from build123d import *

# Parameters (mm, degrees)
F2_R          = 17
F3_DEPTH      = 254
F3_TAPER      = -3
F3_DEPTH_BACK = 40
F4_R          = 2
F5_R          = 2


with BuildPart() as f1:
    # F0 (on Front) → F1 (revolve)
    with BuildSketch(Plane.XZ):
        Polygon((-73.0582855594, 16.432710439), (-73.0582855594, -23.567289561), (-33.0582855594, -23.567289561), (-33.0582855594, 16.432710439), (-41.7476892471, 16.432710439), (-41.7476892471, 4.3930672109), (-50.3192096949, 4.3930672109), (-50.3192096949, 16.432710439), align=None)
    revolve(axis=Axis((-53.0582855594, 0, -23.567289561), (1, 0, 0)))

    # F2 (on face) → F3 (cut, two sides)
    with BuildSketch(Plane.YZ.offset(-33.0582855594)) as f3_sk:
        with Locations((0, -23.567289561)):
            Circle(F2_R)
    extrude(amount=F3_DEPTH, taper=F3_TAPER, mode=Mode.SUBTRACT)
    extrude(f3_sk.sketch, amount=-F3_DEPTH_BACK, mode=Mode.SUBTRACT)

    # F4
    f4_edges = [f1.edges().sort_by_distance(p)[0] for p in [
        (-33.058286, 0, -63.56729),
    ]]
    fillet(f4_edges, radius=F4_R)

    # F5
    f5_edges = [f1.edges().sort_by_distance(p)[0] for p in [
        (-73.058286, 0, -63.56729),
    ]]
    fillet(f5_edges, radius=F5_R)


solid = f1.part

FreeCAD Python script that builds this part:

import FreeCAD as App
import Part
import Sketcher


def edges_at(feature, points):
    """Names of the edges that pass closest to the given points."""
    edges = feature.Shape.Edges
    near = lambda p: min(range(len(edges)), key=lambda i: edges[i].distToShape(Part.Vertex(*p))[0])
    return sorted({f"Edge{near(p) + 1}" for p in points})

doc = App.newDocument("Part")
body = doc.addObject("PartDesign::Body", "Body")

sketch1 = body.newObject("Sketcher::SketchObject", "Sketch")
sketch1.AttachmentSupport = (doc.getObject("XZ_Plane"), [""])
sketch1.MapMode = "FlatFace"
sketch1.addGeometry(Part.LineSegment(App.Vector(-73, 16, 0), App.Vector(-73, -24, 0)), False)
sketch1.addGeometry(Part.LineSegment(App.Vector(-73, -24, 0), App.Vector(-33, -24, 0)), False)
sketch1.addGeometry(Part.LineSegment(App.Vector(-33, -24, 0), App.Vector(-33, 16, 0)), False)
sketch1.addGeometry(Part.LineSegment(App.Vector(-33, 16, 0), App.Vector(-42, 16, 0)), False)
sketch1.addGeometry(Part.LineSegment(App.Vector(-42, 16, 0), App.Vector(-42, 4, 0)), False)
sketch1.addGeometry(Part.LineSegment(App.Vector(-42, 4, 0), App.Vector(-50, 4, 0)), False)
sketch1.addGeometry(Part.LineSegment(App.Vector(-50, 4, 0), App.Vector(-50, 16, 0)), False)
sketch1.addGeometry(Part.LineSegment(App.Vector(-50, 16, 0), App.Vector(-73, 16, 0)), False)
sketch1.addGeometry(Part.LineSegment(App.Vector(-73, -24, 0), App.Vector(-33, -24, 0)), True)
sketch1.addConstraint(Sketcher.Constraint("Coincident", 0, 2, 1, 1))
sketch1.addConstraint(Sketcher.Constraint("Coincident", 1, 2, 2, 1))
sketch1.addConstraint(Sketcher.Constraint("Coincident", 2, 2, 3, 1))
sketch1.addConstraint(Sketcher.Constraint("Coincident", 3, 2, 4, 1))
sketch1.addConstraint(Sketcher.Constraint("Coincident", 4, 2, 5, 1))
sketch1.addConstraint(Sketcher.Constraint("Coincident", 5, 2, 6, 1))
sketch1.addConstraint(Sketcher.Constraint("Coincident", 6, 2, 7, 1))
sketch1.addConstraint(Sketcher.Constraint("Coincident", 7, 2, 0, 1))
sketch1.addConstraint(Sketcher.Constraint("Vertical", 0))
sketch1.addConstraint(Sketcher.Constraint("Horizontal", 1))
sketch1.addConstraint(Sketcher.Constraint("Vertical", 2))
sketch1.addConstraint(Sketcher.Constraint("Horizontal", 3))
sketch1.addConstraint(Sketcher.Constraint("Vertical", 4))
sketch1.addConstraint(Sketcher.Constraint("Horizontal", 5))
sketch1.addConstraint(Sketcher.Constraint("Vertical", 6))
sketch1.addConstraint(Sketcher.Constraint("Horizontal", 7))
sketch1.addConstraint(Sketcher.Constraint("Horizontal", 8))
sketch1.addConstraint(Sketcher.Constraint("Coincident", 8, 1, 0, 2))
sketch1.addConstraint(Sketcher.Constraint("Horizontal", 3, 2, 6, 2))
sketch1.addConstraint(Sketcher.Constraint("Vertical", 2, 2, 8, 2))
sketch1.addConstraint(Sketcher.Constraint("Equal", 8, 0))
sketch1.addConstraint(Sketcher.Constraint("DistanceX", 1, 1, 1, 2, 40.0))
sketch1.addConstraint(Sketcher.Constraint("DistanceX", 5, 2, 5, 1, 8.57152))
sketch1.addConstraint(Sketcher.Constraint("DistanceX", 3, 2, 3, 1, 8.689404))
sketch1.addConstraint(Sketcher.Constraint("DistanceY", 4, 2, 4, 1, 12.039643))
sketch1.addConstraint(Sketcher.Constraint("DistanceY", 0, 2, -1, 1, 23.56729))
sketch1.addConstraint(Sketcher.Constraint("DistanceX", 3, 2, -1, 1, 41.747689))
revolution = body.newObject("PartDesign::Revolution", "Revolution")
revolution.Profile = sketch1
revolution.ReferenceAxis = (sketch1, ["Axis0"])
revolution.Angle = 360

sketch2 = body.newObject("Sketcher::SketchObject", "Sketch001")
sketch2.AttachmentSupport = (doc.getObject("YZ_Plane"), [""])
sketch2.MapMode = "FlatFace"
sketch2.AttachmentOffset = App.Placement(App.Vector(0, 0, -33.058286), App.Rotation())
sketch2.addGeometry(Part.Circle(App.Vector(0, -24, 0), App.Vector(0, 0, 1), 17), False)
sketch2.addConstraint(Sketcher.Constraint("PointOnObject", 0, 3, -2))
sketch2.addConstraint(Sketcher.Constraint("Diameter", 0, 34.0))
sketch2.addConstraint(Sketcher.Constraint("DistanceY", 0, 3, -1, 1, 23.56729))
pocket1 = body.newObject("PartDesign::Pocket", "Pocket")
pocket1.Profile = sketch2
pocket1.Length = 254
pocket1.Reversed = True
pocket1.TaperAngle = 3
pocket2 = body.newObject("PartDesign::Pocket", "Pocket001")
pocket2.Profile = sketch2
pocket2.Length = 40
doc.recompute()

fillet = body.newObject("PartDesign::Fillet", "Fillet")
fillet.Base = (pocket2, edges_at(pocket2, [(-33.058, 0, -63.567)]))
fillet.Radius = 2
doc.recompute()

fillet2 = body.newObject("PartDesign::Fillet", "Fillet001")
fillet2.Base = (fillet, edges_at(fillet, [(-73.058, 0, -63.567)]))
fillet2.Radius = 2

doc.recompute()
